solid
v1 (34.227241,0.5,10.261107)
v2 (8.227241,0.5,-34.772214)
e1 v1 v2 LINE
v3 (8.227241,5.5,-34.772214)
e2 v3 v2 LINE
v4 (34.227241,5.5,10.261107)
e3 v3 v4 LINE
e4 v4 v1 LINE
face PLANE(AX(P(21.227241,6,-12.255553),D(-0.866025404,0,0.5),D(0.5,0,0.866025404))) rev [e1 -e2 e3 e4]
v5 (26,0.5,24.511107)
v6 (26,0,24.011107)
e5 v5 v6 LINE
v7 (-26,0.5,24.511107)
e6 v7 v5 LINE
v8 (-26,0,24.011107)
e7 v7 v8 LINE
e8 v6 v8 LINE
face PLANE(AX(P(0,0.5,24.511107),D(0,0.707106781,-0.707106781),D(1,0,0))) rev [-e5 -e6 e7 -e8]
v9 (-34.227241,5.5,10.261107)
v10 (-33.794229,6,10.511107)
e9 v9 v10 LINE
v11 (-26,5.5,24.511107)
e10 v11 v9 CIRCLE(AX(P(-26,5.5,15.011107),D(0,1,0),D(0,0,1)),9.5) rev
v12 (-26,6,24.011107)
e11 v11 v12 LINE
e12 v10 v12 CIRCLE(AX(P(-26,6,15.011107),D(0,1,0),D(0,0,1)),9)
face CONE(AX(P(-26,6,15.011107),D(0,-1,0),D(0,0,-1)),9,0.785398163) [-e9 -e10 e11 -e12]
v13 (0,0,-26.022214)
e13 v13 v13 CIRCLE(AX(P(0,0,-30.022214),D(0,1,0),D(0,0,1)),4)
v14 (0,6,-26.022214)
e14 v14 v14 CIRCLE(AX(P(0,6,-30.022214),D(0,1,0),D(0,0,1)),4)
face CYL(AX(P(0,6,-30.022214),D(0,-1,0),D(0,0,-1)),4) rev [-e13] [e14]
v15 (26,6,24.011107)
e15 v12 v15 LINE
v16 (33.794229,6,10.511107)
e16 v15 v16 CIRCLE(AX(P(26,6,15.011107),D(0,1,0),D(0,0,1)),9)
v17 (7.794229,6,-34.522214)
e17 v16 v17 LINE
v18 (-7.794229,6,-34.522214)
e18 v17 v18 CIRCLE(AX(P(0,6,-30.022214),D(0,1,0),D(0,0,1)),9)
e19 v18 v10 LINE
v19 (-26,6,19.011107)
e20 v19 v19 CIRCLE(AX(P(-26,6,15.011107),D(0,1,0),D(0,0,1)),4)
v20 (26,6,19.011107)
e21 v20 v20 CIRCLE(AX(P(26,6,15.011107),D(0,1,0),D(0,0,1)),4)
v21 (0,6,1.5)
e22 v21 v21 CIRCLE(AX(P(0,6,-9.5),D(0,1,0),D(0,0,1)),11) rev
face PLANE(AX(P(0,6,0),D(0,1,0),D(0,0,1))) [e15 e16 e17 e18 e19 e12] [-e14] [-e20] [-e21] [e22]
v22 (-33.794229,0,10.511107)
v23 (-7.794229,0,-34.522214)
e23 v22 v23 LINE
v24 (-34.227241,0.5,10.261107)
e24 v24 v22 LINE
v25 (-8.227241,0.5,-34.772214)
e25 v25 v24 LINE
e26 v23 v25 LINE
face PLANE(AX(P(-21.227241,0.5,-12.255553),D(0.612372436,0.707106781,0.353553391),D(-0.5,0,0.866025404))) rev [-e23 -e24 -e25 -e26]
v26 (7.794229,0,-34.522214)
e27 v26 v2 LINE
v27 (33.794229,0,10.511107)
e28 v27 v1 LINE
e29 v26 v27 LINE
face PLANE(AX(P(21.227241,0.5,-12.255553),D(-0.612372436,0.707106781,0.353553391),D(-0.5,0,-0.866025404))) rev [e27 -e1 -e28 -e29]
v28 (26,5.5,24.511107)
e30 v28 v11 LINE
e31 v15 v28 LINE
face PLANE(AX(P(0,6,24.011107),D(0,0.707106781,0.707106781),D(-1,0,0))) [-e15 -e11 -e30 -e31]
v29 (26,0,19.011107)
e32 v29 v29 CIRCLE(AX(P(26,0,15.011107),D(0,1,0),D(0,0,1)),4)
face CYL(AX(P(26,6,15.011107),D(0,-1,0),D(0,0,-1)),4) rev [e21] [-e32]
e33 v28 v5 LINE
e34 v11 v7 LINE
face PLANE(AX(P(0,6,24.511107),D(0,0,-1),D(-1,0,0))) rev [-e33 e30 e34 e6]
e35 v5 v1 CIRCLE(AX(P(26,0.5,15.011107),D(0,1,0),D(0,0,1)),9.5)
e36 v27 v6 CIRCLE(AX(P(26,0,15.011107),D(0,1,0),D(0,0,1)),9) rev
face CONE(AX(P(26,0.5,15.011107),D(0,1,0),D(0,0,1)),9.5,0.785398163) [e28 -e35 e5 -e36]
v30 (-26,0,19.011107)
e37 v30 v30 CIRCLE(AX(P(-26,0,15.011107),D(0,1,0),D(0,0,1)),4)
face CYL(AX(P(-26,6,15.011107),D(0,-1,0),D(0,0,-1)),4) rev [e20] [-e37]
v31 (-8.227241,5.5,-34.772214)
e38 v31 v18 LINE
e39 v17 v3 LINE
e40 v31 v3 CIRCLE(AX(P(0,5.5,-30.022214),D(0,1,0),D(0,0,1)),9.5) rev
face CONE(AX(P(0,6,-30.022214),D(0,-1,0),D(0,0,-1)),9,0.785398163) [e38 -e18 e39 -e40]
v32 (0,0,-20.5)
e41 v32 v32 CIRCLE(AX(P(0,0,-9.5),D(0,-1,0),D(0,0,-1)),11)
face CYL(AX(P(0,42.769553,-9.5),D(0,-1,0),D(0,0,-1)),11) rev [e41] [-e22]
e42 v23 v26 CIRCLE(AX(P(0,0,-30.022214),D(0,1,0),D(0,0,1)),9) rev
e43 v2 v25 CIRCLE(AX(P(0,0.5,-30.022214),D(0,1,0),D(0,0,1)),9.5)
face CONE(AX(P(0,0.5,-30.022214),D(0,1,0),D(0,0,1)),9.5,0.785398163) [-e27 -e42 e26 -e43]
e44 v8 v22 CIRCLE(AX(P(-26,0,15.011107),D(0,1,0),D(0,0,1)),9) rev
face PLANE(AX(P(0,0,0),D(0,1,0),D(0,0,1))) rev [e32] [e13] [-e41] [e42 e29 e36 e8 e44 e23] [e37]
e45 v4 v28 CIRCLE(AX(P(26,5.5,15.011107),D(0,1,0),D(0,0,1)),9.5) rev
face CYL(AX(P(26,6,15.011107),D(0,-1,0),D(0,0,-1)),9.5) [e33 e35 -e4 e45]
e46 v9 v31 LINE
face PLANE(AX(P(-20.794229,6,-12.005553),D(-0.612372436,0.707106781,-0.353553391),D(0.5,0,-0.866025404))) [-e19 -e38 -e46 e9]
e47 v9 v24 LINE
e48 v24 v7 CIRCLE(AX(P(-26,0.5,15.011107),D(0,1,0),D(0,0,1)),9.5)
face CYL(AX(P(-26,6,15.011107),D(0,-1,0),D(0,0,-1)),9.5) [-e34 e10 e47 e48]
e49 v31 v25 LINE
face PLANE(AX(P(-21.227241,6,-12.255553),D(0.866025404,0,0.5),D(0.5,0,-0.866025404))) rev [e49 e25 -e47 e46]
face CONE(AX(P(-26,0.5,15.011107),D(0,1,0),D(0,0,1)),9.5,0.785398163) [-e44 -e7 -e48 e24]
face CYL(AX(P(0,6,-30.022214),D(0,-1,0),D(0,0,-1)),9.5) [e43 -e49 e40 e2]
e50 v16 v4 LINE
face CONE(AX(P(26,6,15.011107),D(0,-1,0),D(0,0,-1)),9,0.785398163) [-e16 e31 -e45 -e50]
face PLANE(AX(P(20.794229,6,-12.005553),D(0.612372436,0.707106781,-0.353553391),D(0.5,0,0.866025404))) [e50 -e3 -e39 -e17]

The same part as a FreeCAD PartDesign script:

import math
import FreeCAD as App
import Part
import Sketcher
from FreeCAD import Vector
Q = App.Units.Quantity


def edges_at(feature, points):
    """Names of the edges that pass closest to the given points."""
    edges = feature.Shape.Edges
    near = lambda p: min(range(len(edges)), key=lambda i: edges[i].distToShape(Part.Vertex(*p))[0])
    return sorted({f"Edge{near(p) + 1}" for p in points})

doc = App.newDocument("Part")
params = doc.addObject("Spreadsheet::Sheet", "Params")
for row, (alias, value) in enumerate([
    ("sketch1_diameter", "8 mm"),
    ("sketch1_radius", "9.5 mm"),
    ("sketch1_width", "52 mm"),
    ("pad1_length", "6 mm"),
    ("chamfer_size", "0.5 mm"),
    ("sketch2_diameter", "30 mm"),
    ("sketch3_diameter", "30 mm"),
    ("sketch3_diameter2", "26 mm"),
    ("pad2_length", "6 mm"),
    ("sketch4_diameter", "26 mm"),
    ("sketch4_diameter2", "22 mm"),
    ("pad3_length", "6 mm"),
], start=1):
    params.set(f"A{row}", alias)
    params.set(f"B{row}", "=" + value)
    params.setAlias(f"B{row}", alias)

body = doc.addObject("PartDesign::Body", "Body")

sketch1 = body.newObject("Sketcher::SketchObject", "Sketch")
sketch1.AttachmentSupport = (doc.getObject("XZ_Plane"), [""])
sketch1.MapMode = "FlatFace"
sketch1.addGeometry([
    Part.LineSegment(Vector(-8.2, -34.8, 0), Vector(-34.2, 10.3, 0)),
    Part.ArcOfCircle(Part.Circle(Vector(-26, 15, 0), Vector(0, 0, 1), 9.5), math.radians(90), math.radians(210)),
    Part.LineSegment(Vector(-26, 24.5, 0), Vector(26, 24.5, 0)),
    Part.ArcOfCircle(Part.Circle(Vector(26, 15, 0), Vector(0, 0, 1), 9.5), math.radians(-30), math.radians(90)),
    Part.LineSegment(Vector(34.2, 10.3, 0), Vector(8.2, -34.8, 0)),
    Part.ArcOfCircle(Part.Circle(Vector(0, -30, 0), Vector(0, 0, 1), 9.5), math.radians(-150), math.radians(-30)),
    Part.Circle(Vector(-26, 15, 0), Vector(0, 0, 1), 4),
    Part.Circle(Vector(26, 15, 0), Vector(0, 0, 1), 4),
    Part.Circle(Vector(0, -30, 0), Vector(0, 0, 1), 4),
], False)
sketch1.addConstraint([
    Sketcher.Constraint("Tangent", 0, 2, 1, 2),
    Sketcher.Constraint("Tangent", 1, 1, 2, 1),
    Sketcher.Constraint("Tangent", 2, 2, 3, 2),
    Sketcher.Constraint("Tangent", 3, 1, 4, 1),
    Sketcher.Constraint("Tangent", 4, 2, 5, 2),
    Sketcher.Constraint("Tangent", 5, 1, 0, 1),
    Sketcher.Constraint("Horizontal", 2),
    Sketcher.Constraint("Coincident", 6, 3, 1, 3),
    Sketcher.Constraint("Coincident", 7, 3, 3, 3),
    Sketcher.Constraint("Coincident", 8, 3, 5, 3),
    Sketcher.Constraint("Equal", 1, 3),
    Sketcher.Constraint("Equal", 3, 5),
    Sketcher.Constraint("Equal", 6, 7),
    Sketcher.Constraint("Equal", 7, 8),
    Sketcher.Constraint("Symmetric", 0, 2, 3, 1, -2),
    Sketcher.Constraint("Diameter", 6, 8.0),
    Sketcher.Constraint("Radius", 1, 9.5),
    Sketcher.Constraint("DistanceX", 2, 1, 2, 2, 52.0),
    Sketcher.Constraint("Angle", 0, Q("120 deg")),
    Sketcher.Constraint("DistanceY", -1, 1, 1, 3, 15.011107),
])
sketch1.setExpression("Constraints[15]", "Params.sketch1_diameter")
sketch1.setExpression("Constraints[16]", "Params.sketch1_radius")
sketch1.setExpression("Constraints[17]", "Params.sketch1_width")
pad1 = body.newObject("PartDesign::Pad", "Pad")
pad1.Profile = sketch1
pad1.setExpression("Length", "Params.pad1_length")
pad1.Reversed = True
doc.recompute()

chamfer = body.newObject("PartDesign::Chamfer", "Chamfer")
chamfer.Base = (pad1, edges_at(pad1, [
    (-34.227, 6, 19.761),
    (0, 0, -39.522),
    (21.227, 0, -12.256),
    (34.227, 0, 19.761),
    (0, 0, 24.511),
    (-34.227, 0, 19.761),
    (-21.227, 0, -12.256),
    (0, 6, 24.511),
    (34.227, 6, 19.761),
    (21.227, 6, -12.256),
    (0, 6, -39.522),
    (-21.227, 6, -12.256),
]))
chamfer.setExpression("Size", "Params.chamfer_size")

sketch2 = body.newObject("Sketcher::SketchObject", "Sketch001")
sketch2.AttachmentSupport = (doc.getObject("XZ_Plane"), [""])
sketch2.MapMode = "FlatFace"
sketch2.addGeometry(Part.Circle(Vector(0, -10, 0), Vector(0, 0, 1), 15), False)
sketch2.addConstraint([
    Sketcher.Constraint("PointOnObject", 0, 3, -2),
    Sketcher.Constraint("Diameter", 0, 30.0),
    Sketcher.Constraint("DistanceY", 0, 3, -1, 1, 9.5),
])
sketch2.setExpression("Constraints[1]", "Params.sketch2_diameter")
pocket1 = body.newObject("PartDesign::Pocket", "Pocket")
pocket1.Profile = sketch2
pocket1.Type = "UpToFirst"

sketch3 = body.newObject("Sketcher::SketchObject", "Sketch002")
sketch3.AttachmentSupport = (doc.getObject("XZ_Plane"), [""])
sketch3.MapMode = "FlatFace"
sketch3.addGeometry([
    Part.Circle(Vector(0, -10, 0), Vector(0, 0, 1), 15),
    Part.Circle(Vector(0, -10, 0), Vector(0, 0, 1), 13),
], False)
sketch3.addConstraint([
    Sketcher.Constraint("Coincident", 1, 3, 0, 3),
    Sketcher.Constraint("PointOnObject", 0, 3, -2),
    Sketcher.Constraint("Diameter", 0, 30.0),
    Sketcher.Constraint("Diameter", 1, 26.0),
    Sketcher.Constraint("DistanceY", 0, 3, -1, 1, 9.5),
])
sketch3.setExpression("Constraints[2]", "Params.sketch3_diameter")
sketch3.setExpression("Constraints[3]", "Params.sketch3_diameter2")
pad2 = body.newObject("PartDesign::Pad", "Pad001")
pad2.Profile = sketch3
pad2.setExpression("Length", "Params.pad2_length")
pad2.Reversed = True

sketch4 = body.newObject("Sketcher::SketchObject", "Sketch003")
sketch4.AttachmentSupport = (doc.getObject("XZ_Plane"), [""])
sketch4.MapMode = "FlatFace"
sketch4.addGeometry([
    Part.Circle(Vector(0, -10, 0), Vector(0, 0, 1), 13),
    Part.Circle(Vector(0, -10, 0), Vector(0, 0, 1), 11),
], False)
sketch4.addConstraint([
    Sketcher.Constraint("Coincident", 1, 3, 0, 3),
    Sketcher.Constraint("PointOnObject", 0, 3, -2),
    Sketcher.Constraint("Diameter", 0, 26.0),
    Sketcher.Constraint("Diameter", 1, 22.0),
    Sketcher.Constraint("DistanceY", 0, 3, -1, 1, 9.5),
])
sketch4.setExpression("Constraints[2]", "Params.sketch4_diameter")
sketch4.setExpression("Constraints[3]", "Params.sketch4_diameter2")
pad3 = body.newObject("PartDesign::Pad", "Pad002")
pad3.Profile = sketch4
pad3.setExpression("Length", "Params.pad3_length")
pad3.Reversed = True

doc.recompute()
